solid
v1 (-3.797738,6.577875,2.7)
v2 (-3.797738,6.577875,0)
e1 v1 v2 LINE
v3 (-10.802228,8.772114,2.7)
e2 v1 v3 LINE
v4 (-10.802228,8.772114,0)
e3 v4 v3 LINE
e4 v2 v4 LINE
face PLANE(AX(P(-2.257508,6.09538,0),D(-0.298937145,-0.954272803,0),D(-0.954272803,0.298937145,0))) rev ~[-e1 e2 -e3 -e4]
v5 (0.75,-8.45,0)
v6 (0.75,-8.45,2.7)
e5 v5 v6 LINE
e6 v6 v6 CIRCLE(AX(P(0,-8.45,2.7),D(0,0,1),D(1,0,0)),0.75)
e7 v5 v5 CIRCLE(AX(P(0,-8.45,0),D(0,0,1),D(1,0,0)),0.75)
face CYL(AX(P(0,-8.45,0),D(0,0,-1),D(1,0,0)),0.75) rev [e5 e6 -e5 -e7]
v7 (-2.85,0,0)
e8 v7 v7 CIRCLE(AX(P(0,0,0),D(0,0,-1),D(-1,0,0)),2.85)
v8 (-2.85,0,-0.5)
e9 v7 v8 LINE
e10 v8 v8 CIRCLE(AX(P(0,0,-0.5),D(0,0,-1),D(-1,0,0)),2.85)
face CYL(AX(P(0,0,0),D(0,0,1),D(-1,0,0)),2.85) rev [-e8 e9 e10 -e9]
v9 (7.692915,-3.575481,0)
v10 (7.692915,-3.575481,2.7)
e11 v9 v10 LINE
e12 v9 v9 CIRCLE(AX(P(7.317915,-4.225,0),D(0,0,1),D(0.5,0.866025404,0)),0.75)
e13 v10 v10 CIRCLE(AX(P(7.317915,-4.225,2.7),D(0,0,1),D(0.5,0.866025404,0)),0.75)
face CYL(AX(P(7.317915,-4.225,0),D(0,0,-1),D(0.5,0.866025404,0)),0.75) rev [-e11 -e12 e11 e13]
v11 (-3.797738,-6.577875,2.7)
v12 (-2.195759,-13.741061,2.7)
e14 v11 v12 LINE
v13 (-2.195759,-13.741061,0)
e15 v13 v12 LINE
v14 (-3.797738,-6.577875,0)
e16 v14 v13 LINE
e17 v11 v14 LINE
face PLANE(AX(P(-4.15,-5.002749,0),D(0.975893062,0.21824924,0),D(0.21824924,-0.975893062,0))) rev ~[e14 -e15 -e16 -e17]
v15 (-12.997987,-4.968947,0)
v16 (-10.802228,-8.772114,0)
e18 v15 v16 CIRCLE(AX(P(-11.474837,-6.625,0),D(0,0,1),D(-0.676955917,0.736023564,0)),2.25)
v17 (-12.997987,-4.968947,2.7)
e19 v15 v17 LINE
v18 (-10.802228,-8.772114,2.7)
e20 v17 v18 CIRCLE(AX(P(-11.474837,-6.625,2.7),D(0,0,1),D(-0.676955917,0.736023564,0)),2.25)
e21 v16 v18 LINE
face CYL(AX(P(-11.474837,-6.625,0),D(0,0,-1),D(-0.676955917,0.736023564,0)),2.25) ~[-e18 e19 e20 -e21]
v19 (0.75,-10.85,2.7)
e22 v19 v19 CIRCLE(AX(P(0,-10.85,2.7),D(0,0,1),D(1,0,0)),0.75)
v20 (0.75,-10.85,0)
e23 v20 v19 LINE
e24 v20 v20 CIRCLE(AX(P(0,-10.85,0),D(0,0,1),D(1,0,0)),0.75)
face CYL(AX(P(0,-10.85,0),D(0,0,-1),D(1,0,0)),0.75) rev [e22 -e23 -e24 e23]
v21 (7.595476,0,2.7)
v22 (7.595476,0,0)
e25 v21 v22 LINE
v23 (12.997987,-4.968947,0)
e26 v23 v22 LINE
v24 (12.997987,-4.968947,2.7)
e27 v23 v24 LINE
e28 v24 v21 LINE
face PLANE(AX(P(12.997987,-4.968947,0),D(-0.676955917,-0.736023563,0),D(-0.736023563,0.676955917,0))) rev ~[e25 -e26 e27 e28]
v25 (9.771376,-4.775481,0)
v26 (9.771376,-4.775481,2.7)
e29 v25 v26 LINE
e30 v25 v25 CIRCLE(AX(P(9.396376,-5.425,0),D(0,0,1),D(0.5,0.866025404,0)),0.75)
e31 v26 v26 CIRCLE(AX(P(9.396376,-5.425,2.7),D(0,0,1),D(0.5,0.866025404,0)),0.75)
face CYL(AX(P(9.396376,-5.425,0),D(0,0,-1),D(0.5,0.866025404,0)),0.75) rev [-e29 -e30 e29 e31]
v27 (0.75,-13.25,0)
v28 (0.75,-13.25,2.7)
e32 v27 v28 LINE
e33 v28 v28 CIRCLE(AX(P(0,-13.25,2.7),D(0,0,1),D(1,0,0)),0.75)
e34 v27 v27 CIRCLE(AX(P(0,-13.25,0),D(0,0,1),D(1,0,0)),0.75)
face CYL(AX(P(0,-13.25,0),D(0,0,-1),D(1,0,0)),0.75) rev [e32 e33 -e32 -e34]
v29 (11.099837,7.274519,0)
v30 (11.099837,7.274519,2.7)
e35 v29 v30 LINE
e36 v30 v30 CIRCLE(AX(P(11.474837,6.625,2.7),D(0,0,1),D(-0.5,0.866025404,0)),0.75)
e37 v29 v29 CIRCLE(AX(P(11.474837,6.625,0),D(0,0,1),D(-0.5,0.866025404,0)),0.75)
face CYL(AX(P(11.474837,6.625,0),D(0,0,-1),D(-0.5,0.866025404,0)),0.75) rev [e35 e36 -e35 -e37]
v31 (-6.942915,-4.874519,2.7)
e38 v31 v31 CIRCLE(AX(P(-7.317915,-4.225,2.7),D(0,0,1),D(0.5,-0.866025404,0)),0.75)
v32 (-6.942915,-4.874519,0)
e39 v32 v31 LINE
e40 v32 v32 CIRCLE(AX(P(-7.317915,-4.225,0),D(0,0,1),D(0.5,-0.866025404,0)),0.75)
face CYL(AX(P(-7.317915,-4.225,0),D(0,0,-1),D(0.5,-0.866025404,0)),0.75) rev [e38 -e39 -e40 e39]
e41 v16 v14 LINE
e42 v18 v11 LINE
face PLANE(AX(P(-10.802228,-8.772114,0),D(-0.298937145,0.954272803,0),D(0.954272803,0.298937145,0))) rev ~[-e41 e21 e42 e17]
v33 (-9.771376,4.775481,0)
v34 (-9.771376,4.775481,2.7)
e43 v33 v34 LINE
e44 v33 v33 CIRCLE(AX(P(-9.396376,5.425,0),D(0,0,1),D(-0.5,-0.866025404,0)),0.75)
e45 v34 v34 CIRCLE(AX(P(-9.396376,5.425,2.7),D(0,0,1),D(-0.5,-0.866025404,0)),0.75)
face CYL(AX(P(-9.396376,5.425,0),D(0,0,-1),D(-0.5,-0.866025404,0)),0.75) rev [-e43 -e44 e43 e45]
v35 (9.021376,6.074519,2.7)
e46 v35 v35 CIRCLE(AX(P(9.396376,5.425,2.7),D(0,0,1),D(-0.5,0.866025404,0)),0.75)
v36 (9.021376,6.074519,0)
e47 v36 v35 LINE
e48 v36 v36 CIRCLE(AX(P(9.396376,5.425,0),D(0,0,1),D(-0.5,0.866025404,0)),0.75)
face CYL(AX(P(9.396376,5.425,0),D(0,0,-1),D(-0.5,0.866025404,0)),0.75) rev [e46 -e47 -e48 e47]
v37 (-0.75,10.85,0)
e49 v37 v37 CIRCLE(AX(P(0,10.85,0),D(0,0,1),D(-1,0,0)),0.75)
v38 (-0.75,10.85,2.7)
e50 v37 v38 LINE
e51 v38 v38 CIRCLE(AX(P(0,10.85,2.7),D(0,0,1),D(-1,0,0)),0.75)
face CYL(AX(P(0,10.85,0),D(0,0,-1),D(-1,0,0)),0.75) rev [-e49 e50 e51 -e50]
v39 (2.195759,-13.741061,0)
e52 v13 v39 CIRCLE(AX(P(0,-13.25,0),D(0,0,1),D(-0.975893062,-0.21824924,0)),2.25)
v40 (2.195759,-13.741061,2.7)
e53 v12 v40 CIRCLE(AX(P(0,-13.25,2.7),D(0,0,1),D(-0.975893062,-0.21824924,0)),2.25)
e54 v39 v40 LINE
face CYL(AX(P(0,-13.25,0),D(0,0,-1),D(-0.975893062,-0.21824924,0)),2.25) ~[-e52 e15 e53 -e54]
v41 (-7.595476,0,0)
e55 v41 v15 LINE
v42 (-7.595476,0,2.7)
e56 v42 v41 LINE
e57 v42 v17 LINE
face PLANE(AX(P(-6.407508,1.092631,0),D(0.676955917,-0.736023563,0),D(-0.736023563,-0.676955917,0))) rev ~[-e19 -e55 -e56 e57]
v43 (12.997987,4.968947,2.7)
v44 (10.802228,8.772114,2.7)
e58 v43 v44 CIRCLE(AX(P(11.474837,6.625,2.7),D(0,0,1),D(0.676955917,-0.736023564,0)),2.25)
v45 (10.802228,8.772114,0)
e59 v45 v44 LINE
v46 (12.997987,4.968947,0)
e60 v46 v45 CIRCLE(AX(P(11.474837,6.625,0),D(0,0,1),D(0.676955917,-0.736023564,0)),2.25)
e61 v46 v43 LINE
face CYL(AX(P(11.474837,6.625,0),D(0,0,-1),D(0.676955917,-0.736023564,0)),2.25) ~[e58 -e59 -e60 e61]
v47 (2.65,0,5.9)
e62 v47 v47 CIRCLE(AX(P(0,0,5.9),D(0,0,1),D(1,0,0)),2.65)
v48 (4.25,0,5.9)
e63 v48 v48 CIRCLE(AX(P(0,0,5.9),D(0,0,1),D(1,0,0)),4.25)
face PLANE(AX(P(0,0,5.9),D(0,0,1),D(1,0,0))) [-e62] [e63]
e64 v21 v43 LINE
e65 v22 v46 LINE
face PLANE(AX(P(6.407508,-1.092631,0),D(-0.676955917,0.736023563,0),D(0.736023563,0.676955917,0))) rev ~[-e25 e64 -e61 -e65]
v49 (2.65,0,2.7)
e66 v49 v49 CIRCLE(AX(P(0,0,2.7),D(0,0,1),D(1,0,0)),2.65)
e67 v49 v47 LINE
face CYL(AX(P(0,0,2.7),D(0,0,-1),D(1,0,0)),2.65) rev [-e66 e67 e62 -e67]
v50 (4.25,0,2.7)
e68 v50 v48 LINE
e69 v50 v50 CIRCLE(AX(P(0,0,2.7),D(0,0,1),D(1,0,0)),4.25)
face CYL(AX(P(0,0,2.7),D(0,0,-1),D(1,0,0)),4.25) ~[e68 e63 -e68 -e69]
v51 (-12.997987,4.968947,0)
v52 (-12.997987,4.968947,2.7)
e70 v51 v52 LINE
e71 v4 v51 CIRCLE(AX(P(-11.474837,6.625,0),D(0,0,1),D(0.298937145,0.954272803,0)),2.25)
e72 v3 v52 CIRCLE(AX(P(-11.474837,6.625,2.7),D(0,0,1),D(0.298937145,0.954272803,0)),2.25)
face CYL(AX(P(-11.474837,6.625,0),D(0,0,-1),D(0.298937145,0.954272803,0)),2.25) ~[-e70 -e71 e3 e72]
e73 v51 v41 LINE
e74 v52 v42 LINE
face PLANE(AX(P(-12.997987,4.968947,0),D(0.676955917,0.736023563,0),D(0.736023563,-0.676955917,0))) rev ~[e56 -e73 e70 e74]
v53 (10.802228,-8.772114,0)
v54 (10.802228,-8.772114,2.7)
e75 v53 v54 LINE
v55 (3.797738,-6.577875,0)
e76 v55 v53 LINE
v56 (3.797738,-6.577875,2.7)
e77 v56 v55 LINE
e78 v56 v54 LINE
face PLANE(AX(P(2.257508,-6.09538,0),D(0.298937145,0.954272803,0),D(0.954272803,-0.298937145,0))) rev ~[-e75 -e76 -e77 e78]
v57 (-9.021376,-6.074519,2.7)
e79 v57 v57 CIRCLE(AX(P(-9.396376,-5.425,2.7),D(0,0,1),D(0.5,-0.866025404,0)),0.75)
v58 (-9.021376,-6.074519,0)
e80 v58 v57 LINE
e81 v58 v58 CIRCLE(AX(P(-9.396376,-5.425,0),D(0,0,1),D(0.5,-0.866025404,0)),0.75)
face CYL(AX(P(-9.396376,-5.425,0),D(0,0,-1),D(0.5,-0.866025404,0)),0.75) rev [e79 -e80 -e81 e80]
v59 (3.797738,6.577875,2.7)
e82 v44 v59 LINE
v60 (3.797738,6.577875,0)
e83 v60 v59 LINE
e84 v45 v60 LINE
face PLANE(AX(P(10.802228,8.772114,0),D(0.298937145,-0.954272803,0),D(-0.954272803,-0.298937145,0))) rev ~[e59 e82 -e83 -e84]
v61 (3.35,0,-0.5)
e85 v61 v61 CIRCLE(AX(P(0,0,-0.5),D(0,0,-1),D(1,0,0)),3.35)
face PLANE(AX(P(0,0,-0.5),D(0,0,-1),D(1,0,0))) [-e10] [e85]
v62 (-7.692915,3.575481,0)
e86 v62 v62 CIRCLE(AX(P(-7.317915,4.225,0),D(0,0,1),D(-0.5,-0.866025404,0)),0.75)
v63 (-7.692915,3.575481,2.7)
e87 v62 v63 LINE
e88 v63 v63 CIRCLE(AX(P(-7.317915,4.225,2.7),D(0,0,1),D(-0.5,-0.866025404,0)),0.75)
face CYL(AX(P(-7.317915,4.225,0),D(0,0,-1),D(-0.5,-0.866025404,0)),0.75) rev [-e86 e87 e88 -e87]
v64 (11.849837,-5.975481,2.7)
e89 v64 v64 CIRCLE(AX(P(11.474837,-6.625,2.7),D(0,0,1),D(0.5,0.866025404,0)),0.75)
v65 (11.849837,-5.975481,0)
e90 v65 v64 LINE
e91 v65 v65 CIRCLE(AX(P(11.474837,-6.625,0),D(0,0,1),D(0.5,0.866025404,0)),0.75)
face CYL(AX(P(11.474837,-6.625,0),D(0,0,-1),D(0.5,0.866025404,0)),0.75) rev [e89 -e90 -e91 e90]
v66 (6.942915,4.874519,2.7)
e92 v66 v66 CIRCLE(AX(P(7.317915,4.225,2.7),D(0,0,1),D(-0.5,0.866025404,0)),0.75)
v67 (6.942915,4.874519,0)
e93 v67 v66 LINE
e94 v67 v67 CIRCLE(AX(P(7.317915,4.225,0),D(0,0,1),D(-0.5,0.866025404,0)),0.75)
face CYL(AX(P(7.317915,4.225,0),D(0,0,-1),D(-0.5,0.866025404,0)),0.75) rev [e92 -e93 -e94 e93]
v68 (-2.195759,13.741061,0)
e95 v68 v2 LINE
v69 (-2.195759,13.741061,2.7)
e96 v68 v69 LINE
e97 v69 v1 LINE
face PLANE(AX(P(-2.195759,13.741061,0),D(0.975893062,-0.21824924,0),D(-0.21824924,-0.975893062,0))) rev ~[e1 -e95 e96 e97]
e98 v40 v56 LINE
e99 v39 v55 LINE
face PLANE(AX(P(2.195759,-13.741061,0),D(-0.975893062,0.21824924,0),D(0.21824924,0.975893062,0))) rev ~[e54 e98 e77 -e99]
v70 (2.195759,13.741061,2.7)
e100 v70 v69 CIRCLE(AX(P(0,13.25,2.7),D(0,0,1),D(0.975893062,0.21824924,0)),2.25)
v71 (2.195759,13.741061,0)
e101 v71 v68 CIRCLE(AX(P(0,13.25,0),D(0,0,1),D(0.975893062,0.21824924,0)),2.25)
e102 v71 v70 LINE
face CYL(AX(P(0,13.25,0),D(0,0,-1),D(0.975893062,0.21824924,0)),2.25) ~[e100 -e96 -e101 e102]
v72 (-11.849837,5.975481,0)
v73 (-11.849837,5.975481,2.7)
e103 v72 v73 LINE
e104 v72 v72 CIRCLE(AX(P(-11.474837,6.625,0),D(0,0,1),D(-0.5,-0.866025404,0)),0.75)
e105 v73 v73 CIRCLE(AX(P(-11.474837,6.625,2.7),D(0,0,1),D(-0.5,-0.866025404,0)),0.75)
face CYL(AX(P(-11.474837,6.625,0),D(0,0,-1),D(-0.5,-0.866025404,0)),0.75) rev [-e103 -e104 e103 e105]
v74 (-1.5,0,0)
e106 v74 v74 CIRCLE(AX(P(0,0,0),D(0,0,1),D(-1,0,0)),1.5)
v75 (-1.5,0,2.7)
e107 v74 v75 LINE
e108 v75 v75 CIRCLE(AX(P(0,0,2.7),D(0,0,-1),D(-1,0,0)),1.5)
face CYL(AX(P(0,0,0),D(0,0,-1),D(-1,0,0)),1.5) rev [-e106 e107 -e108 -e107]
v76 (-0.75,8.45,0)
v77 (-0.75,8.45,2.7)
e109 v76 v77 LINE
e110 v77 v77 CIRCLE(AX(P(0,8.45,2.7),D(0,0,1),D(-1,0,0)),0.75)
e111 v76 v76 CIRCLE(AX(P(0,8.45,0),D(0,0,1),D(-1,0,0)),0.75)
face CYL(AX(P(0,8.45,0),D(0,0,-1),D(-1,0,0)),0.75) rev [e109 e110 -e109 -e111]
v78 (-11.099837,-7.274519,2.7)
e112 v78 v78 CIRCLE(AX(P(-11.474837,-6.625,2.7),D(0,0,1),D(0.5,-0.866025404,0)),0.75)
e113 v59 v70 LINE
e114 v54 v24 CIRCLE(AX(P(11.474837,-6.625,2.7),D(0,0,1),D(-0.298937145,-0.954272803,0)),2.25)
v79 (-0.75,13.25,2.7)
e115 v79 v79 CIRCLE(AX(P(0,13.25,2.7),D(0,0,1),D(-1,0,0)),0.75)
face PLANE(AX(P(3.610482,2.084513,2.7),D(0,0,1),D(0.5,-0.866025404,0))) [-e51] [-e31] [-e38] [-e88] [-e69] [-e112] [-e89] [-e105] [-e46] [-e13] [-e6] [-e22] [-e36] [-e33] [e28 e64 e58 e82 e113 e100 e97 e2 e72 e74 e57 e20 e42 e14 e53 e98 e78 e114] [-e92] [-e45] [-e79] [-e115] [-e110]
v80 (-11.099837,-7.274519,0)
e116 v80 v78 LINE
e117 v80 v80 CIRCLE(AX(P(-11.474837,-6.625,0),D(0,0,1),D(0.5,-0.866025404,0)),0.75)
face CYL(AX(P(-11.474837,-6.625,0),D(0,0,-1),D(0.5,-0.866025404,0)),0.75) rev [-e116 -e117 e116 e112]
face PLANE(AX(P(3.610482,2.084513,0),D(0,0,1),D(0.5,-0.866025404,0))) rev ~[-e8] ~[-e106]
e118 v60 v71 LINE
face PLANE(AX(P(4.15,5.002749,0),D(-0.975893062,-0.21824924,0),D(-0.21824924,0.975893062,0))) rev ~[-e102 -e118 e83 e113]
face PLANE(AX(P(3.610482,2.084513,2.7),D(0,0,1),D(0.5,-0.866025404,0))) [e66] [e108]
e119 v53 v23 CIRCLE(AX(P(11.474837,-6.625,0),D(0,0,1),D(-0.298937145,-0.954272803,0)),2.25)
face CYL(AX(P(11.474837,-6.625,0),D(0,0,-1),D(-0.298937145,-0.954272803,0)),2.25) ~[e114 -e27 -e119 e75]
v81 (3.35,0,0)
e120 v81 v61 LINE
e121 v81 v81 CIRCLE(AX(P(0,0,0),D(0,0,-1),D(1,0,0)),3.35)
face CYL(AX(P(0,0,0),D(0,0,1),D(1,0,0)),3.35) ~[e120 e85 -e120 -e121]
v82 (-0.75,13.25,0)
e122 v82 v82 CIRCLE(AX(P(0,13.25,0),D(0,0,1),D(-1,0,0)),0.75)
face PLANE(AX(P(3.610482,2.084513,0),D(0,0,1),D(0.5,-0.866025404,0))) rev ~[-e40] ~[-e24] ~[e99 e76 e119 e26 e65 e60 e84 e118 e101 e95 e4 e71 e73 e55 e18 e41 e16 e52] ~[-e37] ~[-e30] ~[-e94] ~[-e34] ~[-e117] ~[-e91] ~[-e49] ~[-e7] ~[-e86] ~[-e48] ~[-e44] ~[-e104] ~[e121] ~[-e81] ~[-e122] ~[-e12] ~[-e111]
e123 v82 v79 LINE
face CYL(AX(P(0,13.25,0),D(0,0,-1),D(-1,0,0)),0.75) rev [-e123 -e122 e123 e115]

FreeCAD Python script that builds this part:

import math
import FreeCAD as App
import Part
import Sketcher

V = App.Vector

doc = App.newDocument("Part")
body = doc.addObject("PartDesign::Body", "Body")

# Sketch on XY plane
sketch1 = doc.addObject("Sketcher::SketchObject", "Sketch")
body.addObject(sketch1)
sketch1.AttachmentSupport = (doc.XY_Plane, [""])
sketch1.MapMode = "FlatFace"
sketch1.addGeometry([
    Part.LineSegment(V(-2.2, 13.7, 0), V(-4.2, 5, 0)),  # 0
    Part.ArcOfCircle(Part.Circle(V(0, 0, 0), V(0, 0, 1), 6.5), math.radians(130), math.radians(410)),  # 1
    Part.LineSegment(V(4.2, 5, 0), V(2.2, 13.7, 0)),  # 2
    Part.ArcOfCircle(Part.Circle(V(0, 13.2, 0), V(0, 0, 1), 2.2), math.radians(13), math.radians(167)),  # 3
    Part.Circle(V(0, 0, 0), V(0, 0, 1), 1.5),  # 4
    Part.Circle(V(0, 8.4, 0), V(0, 0, 1), 0.8),  # 5
    Part.Circle(V(0, 10.8, 0), V(0, 0, 1), 0.8),  # 6
    Part.Circle(V(0, 13.2, 0), V(0, 0, 1), 0.8),  # 7
], False)
sketch1.addConstraint([
    Sketcher.Constraint("Coincident", 0, 2, 1, 1),
    Sketcher.Constraint("Coincident", 1, 2, 2, 1),
    Sketcher.Constraint("Tangent", 2, 2, 3, 1),
    Sketcher.Constraint("Tangent", 3, 2, 0, 1),
    Sketcher.Constraint("Coincident", 1, 3, -1, 1),
    Sketcher.Constraint("Coincident", 4, 3, -1, 1),
    Sketcher.Constraint("Coincident", 7, 3, 3, 3),
    Sketcher.Constraint("Equal", 5, 6),
    Sketcher.Constraint("Equal", 6, 7),
    Sketcher.Constraint("Symmetric", 2, 2, 3, 2, -2),
    Sketcher.Constraint("PointOnObject", 5, 3, -2),
    Sketcher.Constraint("PointOnObject", 6, 3, -2),
    Sketcher.Constraint("Diameter", 4, 3.0),
    Sketcher.Constraint("Diameter", 5, 1.5),
    Sketcher.Constraint("Radius", 1, 6.5),
    Sketcher.Constraint("Radius", 3, 2.25),
    Sketcher.Constraint("DistanceY", 5, 3, 3, 3, 4.8),
    Sketcher.Constraint("DistanceY", 6, 3, 3, 3, 2.4),
    Sketcher.Constraint("DistanceX", 0, 2, 1, 2, 8.3),
    Sketcher.Constraint("DistanceY", -1, 1, 3, 3, 13.25),
])
pad1 = doc.addObject("PartDesign::Pad", "Pad")
body.addObject(pad1)
pad1.Profile = sketch1
pad1.Length = 2.7
doc.recompute()

polarpattern = doc.addObject("PartDesign::PolarPattern", "PolarPattern")
body.addObject(polarpattern)
polarpattern.Originals = [pad1]
polarpattern.Axis = (doc.Z_Axis, [""])
polarpattern.Angle = 360
polarpattern.Occurrences = 6
body.Tip = polarpattern

# Sketch on XY plane
sketch2 = doc.addObject("Sketcher::SketchObject", "Sketch001")
body.addObject(sketch2)
sketch2.AttachmentSupport = (doc.XY_Plane, [""])
sketch2.MapMode = "FlatFace"
sketch2.AttachmentOffset = App.Placement(V(0, 0, 2.7), App.Rotation())
sketch2.addGeometry([
    Part.Circle(V(0, 0, 0), V(0, 0, 1), 4.2),
    Part.Circle(V(0, 0, 0), V(0, 0, 1), 2.6),
], False)
sketch2.addConstraint([
    Sketcher.Constraint("Coincident", 0, 3, -1, 1),
    Sketcher.Constraint("Coincident", 1, 3, -1, 1),
    Sketcher.Constraint("Diameter", 0, 8.5),
    Sketcher.Constraint("Diameter", 1, 5.3),
])
pad2 = doc.addObject("PartDesign::Pad", "Pad001")
body.addObject(pad2)
pad2.Profile = sketch2
pad2.Length = 3.2

# Sketch on XY plane
sketch3 = doc.addObject("Sketcher::SketchObject", "Sketch002")
body.addObject(sketch3)
sketch3.AttachmentSupport = (doc.XY_Plane, [""])
sketch3.MapMode = "FlatFace"
sketch3.addGeometry([
    Part.Circle(V(0, 0, 0), V(0, 0, 1), 3.4),
    Part.Circle(V(0, 0, 0), V(0, 0, 1), 2.9),
], False)
sketch3.addConstraint([
    Sketcher.Constraint("Coincident", 0, 3, -1, 1),
    Sketcher.Constraint("Coincident", 1, 3, -1, 1),
    Sketcher.Constraint("Diameter", 0, 6.7),
    Sketcher.Constraint("Diameter", 1, 5.7),
])
pad3 = doc.addObject("PartDesign::Pad", "Pad002")
body.addObject(pad3)
pad3.Profile = sketch3
pad3.Length = 0.5
pad3.Reversed = True

doc.recompute()
